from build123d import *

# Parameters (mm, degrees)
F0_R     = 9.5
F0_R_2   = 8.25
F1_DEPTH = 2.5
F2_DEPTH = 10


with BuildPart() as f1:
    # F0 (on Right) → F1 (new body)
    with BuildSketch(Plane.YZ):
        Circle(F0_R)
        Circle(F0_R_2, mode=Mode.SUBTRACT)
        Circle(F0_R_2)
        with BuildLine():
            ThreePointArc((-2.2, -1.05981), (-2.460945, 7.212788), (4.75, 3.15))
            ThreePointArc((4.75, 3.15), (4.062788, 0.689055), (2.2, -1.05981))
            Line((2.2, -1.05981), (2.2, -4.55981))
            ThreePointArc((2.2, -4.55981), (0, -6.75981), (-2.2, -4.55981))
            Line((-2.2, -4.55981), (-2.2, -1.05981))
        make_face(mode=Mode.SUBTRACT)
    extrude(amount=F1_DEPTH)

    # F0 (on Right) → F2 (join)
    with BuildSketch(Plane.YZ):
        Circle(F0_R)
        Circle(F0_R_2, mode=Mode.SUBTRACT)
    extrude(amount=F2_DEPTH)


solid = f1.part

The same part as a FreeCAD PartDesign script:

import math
import FreeCAD as App
import Part
import Sketcher
Q = App.Units.Quantity

doc = App.newDocument("Part")
body = doc.addObject("PartDesign::Body", "Body")

sketch1 = doc.addObject("Sketcher::SketchObject", "Sketch")
body.addObject(sketch1)
sketch1.AttachmentSupport = (doc.YZ_Plane, [""])
sketch1.MapMode = "FlatFace"
sketch1.addGeometry([
    Part.Circle(App.Vector(0, 0, 0), App.Vector(0, 0, 1), 9.5),
    Part.LineSegment(App.Vector(-2.2, -4.6, 0), App.Vector(-2.2, -1.1, 0)),
    Part.ArcOfCircle(Part.Circle(App.Vector(0, 3.1, 0), App.Vector(0, 0, 1), 4.7), math.radians(0), math.radians(242)),
    Part.ArcOfCircle(Part.Circle(App.Vector(0, 3.2, 0), App.Vector(0, 0, 1), 4.8), math.radians(-62), math.radians(0)),
    Part.LineSegment(App.Vector(2.2, -1.1, 0), App.Vector(2.2, -4.6, 0)),
    Part.ArcOfCircle(Part.Circle(App.Vector(0, -4.6, 0), App.Vector(0, 0, 1), 2.2), math.radians(180), math.radians(360)),
], False)
sketch1.addConstraint([
    Sketcher.Constraint("Coincident", 1, 2, 2, 2),
    Sketcher.Constraint("Tangent", 2, 1, 3, 2),
    Sketcher.Constraint("Coincident", 3, 1, 4, 1),
    Sketcher.Constraint("Tangent", 4, 2, 5, 2),
    Sketcher.Constraint("Tangent", 5, 1, 1, 1),
    Sketcher.Constraint("Vertical", 1),
    Sketcher.Constraint("Vertical", 4),
    Sketcher.Constraint("Coincident", 0, 3, -1, 1),
    Sketcher.Constraint("Symmetric", 1, 2, 3, 1, -2),
    Sketcher.Constraint("PointOnObject", 2, 3, -2),
    Sketcher.Constraint("Horizontal", 3, 3, 2, 1),
    Sketcher.Constraint("Diameter", 0, Q("19 mm")),
    Sketcher.Constraint("Radius", 5, Q("2.2 mm")),
    Sketcher.Constraint("Radius", 2, Q("4.75 mm")),
    Sketcher.Constraint("DistanceY", 1, 1, 1, 2, Q("3.5 mm")),
    Sketcher.Constraint("DistanceY", -1, 1, 2, 3, Q("3.15 mm")),
])
pad1 = doc.addObject("PartDesign::Pad", "Pad")
body.addObject(pad1)
pad1.Profile = sketch1
pad1.Length = 2.5

sketch2 = doc.addObject("Sketcher::SketchObject", "Sketch001")
body.addObject(sketch2)
sketch2.AttachmentSupport = (doc.YZ_Plane, [""])
sketch2.MapMode = "FlatFace"
sketch2.addGeometry([
    Part.Circle(App.Vector(0, 0, 0), App.Vector(0, 0, 1), 10),
    Part.Circle(App.Vector(0, 0, 0), App.Vector(0, 0, 1), 8),
], False)
sketch2.addConstraint([
    Sketcher.Constraint("Coincident", 0, 3, -1, 1),
    Sketcher.Constraint("Coincident", 1, 3, -1, 1),
    Sketcher.Constraint("Diameter", 0, Q("19 mm")),
    Sketcher.Constraint("Diameter", 1, Q("16.5 mm")),
])
pad2 = doc.addObject("PartDesign::Pad", "Pad001")
body.addObject(pad2)
pad2.Profile = sketch2
pad2.Length = 10

doc.recompute()
